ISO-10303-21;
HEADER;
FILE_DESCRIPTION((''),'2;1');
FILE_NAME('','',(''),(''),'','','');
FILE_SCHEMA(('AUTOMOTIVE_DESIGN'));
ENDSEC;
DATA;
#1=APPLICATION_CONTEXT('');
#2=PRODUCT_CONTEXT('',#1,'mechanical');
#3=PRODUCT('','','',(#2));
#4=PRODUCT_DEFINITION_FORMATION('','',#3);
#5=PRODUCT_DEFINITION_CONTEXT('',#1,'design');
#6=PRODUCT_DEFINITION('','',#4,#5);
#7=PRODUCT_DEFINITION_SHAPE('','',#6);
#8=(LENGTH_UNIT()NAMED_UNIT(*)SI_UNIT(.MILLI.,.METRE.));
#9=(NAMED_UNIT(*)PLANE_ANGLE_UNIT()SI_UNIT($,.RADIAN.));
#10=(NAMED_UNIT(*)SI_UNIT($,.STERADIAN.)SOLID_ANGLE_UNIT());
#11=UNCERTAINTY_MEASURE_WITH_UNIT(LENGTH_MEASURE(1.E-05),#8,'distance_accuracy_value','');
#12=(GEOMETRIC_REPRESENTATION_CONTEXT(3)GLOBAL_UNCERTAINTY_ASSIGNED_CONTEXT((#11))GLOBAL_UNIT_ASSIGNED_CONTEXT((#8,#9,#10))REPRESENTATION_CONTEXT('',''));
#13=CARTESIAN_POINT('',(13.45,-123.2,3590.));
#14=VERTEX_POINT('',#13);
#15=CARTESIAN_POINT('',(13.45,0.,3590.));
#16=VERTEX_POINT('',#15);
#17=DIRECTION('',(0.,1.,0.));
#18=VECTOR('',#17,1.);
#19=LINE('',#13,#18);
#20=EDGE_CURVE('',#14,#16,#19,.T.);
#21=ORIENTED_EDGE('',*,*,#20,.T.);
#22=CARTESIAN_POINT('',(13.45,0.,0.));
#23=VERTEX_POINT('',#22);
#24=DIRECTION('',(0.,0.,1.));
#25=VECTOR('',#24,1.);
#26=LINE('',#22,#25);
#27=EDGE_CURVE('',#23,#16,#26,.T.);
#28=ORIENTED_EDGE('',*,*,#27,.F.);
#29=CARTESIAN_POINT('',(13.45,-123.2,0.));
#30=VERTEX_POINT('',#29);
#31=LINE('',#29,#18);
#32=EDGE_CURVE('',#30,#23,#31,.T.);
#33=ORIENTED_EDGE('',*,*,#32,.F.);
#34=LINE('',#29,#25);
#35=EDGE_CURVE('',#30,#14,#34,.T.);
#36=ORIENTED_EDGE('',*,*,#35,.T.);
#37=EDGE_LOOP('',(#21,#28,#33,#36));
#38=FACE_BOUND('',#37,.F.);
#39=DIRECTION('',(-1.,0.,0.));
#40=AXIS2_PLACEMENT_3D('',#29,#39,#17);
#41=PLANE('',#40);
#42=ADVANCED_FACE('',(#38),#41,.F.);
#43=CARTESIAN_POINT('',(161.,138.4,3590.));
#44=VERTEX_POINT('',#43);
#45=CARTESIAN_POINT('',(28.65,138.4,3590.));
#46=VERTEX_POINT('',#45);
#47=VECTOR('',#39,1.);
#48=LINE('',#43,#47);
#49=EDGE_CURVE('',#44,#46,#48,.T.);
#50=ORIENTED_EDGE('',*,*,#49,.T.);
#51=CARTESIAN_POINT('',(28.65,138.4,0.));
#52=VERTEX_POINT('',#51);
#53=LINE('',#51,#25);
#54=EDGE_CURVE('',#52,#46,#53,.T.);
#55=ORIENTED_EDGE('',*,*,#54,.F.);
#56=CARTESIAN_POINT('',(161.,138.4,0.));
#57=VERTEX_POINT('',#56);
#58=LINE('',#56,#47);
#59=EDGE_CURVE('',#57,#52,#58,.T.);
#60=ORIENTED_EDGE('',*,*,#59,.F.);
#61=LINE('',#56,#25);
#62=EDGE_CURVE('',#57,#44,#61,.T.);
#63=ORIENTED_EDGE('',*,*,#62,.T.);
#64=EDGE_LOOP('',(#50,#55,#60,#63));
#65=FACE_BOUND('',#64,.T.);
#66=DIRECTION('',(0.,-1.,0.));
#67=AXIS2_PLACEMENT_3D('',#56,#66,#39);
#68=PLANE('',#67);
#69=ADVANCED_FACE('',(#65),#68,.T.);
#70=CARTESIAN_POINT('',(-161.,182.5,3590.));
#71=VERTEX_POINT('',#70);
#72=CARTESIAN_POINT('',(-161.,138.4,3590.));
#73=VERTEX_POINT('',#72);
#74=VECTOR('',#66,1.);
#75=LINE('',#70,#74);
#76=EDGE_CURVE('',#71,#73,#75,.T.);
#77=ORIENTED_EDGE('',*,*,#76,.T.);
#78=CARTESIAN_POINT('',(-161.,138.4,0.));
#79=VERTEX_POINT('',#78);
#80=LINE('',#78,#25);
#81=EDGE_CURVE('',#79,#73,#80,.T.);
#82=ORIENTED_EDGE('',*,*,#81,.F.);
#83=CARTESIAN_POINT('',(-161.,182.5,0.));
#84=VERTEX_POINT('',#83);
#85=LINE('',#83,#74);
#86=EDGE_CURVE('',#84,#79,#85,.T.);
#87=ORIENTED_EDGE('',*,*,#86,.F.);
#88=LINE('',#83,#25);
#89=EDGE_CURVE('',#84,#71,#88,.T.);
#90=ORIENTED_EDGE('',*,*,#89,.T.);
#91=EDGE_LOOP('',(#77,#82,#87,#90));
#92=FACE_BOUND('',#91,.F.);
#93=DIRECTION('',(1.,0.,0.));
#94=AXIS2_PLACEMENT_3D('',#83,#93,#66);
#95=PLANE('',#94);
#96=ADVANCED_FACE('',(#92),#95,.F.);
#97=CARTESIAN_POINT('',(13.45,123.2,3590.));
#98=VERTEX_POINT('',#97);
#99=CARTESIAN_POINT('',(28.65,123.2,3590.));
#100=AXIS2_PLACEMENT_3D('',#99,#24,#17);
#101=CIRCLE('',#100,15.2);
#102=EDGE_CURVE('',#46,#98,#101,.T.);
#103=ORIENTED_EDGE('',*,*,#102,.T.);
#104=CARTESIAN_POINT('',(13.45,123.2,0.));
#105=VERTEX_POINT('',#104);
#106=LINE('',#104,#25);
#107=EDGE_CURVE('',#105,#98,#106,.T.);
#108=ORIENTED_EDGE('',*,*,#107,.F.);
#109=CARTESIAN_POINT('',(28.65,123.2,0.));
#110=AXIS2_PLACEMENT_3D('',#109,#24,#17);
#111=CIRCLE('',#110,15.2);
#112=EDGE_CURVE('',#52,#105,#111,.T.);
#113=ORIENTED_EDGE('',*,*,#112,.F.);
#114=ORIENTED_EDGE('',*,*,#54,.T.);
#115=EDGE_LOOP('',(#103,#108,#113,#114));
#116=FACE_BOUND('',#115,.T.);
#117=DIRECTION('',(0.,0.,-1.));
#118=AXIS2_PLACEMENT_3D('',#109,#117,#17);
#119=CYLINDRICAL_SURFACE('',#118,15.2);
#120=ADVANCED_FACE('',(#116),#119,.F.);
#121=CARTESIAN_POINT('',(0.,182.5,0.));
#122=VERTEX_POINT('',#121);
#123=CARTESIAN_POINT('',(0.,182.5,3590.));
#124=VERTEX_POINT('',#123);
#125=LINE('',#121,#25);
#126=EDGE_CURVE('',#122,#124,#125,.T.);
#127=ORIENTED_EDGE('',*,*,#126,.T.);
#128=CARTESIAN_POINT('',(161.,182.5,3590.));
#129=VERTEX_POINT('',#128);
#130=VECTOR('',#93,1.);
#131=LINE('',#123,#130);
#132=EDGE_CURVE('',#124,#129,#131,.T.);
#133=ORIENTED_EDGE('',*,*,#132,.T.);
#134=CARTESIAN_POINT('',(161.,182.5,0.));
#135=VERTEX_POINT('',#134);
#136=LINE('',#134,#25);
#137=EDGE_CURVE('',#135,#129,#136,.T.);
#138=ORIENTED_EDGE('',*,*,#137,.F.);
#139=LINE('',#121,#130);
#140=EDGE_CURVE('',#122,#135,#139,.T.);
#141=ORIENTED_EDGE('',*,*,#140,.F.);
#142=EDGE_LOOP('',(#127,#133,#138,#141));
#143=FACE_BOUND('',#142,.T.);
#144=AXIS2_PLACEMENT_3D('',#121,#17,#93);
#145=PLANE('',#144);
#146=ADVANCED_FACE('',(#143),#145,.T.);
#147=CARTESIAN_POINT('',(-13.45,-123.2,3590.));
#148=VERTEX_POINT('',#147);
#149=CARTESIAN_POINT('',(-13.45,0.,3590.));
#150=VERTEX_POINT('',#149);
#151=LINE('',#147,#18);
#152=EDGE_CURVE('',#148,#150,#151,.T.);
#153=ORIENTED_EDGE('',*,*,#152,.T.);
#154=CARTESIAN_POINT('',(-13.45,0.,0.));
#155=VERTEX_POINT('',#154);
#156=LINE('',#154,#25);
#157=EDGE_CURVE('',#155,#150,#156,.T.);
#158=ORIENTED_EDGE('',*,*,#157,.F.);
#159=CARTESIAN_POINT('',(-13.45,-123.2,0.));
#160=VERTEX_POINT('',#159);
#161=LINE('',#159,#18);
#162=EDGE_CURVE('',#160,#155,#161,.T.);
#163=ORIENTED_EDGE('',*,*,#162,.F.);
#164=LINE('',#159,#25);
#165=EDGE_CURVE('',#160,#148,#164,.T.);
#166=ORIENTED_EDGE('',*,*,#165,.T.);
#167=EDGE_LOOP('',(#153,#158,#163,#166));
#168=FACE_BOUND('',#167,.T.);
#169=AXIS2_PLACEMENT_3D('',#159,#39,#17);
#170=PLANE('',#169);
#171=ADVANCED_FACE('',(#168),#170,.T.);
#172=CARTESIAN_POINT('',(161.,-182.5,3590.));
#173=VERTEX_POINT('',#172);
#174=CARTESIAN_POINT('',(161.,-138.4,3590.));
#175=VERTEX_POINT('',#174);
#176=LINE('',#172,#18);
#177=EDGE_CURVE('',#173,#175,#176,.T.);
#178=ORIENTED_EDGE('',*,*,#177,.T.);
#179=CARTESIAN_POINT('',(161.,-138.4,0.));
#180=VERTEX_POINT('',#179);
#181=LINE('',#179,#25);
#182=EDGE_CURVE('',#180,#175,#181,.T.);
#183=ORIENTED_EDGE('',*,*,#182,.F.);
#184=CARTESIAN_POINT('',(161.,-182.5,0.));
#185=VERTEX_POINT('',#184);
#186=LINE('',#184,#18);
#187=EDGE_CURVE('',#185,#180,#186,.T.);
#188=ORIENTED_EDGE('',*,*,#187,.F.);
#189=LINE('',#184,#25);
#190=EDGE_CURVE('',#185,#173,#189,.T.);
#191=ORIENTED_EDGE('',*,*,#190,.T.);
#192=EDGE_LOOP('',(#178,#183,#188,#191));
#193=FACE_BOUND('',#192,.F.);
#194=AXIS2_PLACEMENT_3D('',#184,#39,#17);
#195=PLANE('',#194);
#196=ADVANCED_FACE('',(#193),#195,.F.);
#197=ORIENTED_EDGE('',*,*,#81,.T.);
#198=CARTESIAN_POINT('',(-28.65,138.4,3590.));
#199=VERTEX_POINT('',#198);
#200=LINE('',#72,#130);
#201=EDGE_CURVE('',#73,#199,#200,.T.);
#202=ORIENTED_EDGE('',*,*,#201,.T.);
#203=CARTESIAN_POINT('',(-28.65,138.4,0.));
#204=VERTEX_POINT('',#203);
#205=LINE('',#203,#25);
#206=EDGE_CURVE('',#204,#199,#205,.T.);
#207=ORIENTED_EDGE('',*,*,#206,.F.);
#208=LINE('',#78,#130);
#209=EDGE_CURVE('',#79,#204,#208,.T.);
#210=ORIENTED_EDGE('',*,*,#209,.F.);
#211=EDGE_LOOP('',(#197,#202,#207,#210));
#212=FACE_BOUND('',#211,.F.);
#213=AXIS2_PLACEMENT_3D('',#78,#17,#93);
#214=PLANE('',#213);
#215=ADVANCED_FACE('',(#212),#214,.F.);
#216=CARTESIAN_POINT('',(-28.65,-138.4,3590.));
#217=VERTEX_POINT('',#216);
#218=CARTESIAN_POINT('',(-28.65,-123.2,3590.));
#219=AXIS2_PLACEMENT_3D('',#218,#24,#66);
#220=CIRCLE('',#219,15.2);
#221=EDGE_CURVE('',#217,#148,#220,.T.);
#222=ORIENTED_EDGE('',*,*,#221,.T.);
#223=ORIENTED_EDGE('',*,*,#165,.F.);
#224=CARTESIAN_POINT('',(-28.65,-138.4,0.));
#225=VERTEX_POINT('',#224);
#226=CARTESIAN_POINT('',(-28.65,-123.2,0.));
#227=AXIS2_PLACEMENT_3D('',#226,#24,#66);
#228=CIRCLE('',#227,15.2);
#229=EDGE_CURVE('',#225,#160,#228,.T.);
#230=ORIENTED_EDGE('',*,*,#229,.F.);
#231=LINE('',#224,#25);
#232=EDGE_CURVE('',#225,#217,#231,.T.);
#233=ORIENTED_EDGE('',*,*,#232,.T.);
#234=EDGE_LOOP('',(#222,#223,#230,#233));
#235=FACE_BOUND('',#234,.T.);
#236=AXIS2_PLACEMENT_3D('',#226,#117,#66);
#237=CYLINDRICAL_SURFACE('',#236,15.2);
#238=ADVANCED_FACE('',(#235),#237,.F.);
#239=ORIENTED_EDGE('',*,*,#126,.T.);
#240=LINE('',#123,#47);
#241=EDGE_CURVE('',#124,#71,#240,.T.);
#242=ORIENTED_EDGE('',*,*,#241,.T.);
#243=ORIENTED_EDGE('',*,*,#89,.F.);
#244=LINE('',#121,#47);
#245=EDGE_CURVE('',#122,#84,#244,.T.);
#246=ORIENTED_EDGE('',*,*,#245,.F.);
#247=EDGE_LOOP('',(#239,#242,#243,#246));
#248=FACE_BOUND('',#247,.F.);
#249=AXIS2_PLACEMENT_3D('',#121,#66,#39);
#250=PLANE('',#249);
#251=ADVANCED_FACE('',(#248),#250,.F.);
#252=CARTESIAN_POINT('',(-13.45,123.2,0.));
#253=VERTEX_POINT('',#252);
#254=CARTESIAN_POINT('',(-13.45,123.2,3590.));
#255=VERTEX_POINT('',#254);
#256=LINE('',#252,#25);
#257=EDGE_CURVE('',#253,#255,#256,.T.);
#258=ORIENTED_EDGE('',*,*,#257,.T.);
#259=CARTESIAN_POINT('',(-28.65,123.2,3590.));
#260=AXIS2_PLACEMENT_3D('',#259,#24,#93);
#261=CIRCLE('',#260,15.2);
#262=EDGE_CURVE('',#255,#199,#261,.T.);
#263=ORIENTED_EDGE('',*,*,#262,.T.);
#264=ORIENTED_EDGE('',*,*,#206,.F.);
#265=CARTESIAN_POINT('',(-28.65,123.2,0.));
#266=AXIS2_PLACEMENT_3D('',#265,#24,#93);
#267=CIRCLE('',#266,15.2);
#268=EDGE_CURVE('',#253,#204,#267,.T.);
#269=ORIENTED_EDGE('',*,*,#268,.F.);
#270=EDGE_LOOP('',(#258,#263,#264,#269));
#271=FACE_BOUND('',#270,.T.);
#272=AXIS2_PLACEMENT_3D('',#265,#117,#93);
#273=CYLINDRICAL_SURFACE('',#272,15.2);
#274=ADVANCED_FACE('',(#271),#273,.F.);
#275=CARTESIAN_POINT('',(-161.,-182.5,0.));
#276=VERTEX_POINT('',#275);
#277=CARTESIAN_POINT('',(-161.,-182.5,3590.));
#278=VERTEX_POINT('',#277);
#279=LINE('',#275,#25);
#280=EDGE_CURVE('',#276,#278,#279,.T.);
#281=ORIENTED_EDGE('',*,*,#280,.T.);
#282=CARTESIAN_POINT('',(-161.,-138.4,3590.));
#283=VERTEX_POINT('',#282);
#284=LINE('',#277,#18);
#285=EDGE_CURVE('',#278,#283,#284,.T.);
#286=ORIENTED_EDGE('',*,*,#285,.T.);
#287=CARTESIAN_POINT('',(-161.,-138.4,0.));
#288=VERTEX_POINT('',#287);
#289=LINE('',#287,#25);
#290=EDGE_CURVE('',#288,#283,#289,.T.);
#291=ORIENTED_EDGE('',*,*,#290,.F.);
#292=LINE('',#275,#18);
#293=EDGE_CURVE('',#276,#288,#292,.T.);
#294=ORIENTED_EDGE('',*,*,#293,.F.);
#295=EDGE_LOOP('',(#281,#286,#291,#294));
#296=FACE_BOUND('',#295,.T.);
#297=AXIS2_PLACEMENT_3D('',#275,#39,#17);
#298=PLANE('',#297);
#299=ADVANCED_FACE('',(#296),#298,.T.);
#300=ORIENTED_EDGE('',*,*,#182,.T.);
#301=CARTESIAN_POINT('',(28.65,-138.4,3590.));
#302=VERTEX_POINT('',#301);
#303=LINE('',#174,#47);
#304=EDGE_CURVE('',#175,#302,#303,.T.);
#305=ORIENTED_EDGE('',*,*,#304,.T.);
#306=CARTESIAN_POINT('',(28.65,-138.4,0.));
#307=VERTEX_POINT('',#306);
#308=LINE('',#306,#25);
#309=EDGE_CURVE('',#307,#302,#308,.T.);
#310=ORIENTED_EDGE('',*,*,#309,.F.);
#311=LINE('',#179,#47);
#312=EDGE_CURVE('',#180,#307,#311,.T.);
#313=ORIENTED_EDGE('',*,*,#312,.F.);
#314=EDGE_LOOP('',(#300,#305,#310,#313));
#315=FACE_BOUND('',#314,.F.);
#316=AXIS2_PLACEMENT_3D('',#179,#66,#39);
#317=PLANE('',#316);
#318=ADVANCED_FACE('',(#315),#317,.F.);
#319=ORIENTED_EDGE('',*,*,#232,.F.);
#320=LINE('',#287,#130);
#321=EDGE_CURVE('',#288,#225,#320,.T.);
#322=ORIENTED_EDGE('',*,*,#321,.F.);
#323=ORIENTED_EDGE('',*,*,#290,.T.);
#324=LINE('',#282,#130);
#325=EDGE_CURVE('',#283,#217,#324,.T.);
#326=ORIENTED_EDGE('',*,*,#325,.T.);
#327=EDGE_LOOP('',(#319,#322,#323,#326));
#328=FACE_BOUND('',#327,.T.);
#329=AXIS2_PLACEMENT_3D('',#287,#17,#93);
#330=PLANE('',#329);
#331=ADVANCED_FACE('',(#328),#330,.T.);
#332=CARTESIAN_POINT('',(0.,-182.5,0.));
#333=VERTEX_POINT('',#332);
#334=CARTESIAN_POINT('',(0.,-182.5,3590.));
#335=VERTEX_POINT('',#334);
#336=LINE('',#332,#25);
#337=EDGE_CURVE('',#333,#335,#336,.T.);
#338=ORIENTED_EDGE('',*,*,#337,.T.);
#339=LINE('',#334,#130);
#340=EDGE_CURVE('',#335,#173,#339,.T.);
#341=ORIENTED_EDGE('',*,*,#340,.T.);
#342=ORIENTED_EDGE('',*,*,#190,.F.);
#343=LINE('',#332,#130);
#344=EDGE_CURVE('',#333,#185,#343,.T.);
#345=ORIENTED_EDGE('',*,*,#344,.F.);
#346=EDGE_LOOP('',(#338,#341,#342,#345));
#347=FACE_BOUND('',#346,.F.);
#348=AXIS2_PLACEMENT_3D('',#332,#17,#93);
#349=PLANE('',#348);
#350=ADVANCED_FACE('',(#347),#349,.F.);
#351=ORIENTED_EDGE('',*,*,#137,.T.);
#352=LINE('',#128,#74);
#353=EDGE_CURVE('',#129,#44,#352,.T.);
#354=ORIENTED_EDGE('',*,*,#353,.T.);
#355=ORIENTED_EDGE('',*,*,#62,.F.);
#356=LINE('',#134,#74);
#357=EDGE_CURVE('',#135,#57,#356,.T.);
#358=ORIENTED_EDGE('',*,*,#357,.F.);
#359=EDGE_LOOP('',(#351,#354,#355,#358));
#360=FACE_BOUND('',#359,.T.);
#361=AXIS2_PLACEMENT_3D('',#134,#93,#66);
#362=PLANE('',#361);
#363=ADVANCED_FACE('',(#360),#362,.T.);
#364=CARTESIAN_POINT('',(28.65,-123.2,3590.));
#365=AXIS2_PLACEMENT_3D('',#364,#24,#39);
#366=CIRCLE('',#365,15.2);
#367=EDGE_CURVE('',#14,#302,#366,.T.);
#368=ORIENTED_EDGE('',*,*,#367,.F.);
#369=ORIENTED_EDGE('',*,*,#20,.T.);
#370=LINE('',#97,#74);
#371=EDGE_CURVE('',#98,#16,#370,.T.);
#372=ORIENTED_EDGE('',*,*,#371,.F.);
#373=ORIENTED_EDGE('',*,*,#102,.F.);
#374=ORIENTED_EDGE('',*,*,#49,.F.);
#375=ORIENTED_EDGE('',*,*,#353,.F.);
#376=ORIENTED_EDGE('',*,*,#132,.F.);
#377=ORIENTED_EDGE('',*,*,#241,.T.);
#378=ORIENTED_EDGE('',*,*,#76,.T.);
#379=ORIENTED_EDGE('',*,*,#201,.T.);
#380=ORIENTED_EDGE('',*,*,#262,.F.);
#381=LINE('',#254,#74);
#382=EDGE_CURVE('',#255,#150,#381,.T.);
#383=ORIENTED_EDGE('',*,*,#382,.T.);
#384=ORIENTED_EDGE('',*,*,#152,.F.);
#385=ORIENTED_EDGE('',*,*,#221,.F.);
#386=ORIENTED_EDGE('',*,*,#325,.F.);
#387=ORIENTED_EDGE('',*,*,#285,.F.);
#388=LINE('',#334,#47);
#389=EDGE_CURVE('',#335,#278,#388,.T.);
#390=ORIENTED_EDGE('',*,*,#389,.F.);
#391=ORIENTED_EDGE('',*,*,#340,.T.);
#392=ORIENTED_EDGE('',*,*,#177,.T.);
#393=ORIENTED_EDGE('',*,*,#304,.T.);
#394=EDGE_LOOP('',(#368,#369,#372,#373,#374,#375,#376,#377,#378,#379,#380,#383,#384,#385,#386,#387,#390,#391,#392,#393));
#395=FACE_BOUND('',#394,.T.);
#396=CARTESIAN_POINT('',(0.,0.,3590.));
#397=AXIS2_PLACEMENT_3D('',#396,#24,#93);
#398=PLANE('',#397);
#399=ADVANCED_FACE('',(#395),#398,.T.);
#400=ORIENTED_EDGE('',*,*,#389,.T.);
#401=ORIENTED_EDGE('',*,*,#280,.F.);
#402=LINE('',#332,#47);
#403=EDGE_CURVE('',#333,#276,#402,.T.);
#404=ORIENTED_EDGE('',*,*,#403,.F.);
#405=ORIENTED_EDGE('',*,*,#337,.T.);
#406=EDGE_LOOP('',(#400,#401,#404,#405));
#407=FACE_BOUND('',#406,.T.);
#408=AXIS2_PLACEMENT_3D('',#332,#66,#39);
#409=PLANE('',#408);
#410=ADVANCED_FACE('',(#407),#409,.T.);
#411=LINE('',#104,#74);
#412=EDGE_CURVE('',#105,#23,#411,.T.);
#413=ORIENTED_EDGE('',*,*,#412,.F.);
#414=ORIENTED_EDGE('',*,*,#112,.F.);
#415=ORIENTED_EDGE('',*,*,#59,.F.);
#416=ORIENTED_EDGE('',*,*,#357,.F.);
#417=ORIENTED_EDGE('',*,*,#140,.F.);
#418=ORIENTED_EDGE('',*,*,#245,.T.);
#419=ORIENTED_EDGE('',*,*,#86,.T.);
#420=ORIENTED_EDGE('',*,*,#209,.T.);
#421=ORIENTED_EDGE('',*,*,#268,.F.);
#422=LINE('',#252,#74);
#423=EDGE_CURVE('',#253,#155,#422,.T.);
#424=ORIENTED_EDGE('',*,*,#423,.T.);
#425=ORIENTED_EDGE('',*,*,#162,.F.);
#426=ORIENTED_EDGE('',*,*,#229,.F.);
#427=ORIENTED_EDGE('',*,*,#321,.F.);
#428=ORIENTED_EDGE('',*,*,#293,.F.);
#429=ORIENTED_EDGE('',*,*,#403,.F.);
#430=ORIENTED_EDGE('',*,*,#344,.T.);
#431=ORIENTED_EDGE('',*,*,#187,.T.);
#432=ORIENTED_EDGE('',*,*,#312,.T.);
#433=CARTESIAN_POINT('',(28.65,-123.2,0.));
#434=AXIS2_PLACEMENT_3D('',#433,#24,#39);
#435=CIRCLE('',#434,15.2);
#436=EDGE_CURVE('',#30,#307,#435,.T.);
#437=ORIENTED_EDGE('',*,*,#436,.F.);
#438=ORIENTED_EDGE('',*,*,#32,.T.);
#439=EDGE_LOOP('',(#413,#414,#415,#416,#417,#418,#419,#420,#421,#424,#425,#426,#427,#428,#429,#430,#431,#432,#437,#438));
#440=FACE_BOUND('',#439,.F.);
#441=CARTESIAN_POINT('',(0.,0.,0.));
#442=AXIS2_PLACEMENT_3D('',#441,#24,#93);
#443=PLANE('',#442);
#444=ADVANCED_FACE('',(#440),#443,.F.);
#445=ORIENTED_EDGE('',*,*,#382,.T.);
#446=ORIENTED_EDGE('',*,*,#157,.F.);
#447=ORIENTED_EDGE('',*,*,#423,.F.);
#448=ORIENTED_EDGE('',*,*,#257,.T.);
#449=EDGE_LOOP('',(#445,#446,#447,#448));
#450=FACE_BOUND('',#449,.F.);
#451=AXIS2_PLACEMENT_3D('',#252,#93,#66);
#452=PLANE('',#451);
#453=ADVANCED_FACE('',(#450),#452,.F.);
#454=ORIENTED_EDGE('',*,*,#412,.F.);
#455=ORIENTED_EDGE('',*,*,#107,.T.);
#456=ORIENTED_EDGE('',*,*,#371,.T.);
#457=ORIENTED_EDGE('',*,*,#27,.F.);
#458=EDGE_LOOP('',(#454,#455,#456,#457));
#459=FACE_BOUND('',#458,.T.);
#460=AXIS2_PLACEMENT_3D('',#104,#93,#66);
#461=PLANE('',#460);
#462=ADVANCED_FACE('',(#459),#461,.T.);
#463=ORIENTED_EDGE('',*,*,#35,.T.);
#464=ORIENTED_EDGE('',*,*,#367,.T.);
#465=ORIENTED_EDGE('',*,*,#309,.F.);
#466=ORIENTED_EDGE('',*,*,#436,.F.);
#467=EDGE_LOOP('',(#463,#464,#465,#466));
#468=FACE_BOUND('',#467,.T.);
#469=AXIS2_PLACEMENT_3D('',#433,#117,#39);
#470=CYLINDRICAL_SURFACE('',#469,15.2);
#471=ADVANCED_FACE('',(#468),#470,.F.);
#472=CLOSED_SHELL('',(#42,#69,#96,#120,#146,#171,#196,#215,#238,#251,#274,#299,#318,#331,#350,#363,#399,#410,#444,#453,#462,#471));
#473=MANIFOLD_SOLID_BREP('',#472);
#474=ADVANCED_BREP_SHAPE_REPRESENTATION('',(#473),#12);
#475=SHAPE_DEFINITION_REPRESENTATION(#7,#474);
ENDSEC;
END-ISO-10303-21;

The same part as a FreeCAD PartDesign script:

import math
import FreeCAD as App
import Part
import Sketcher

doc = App.newDocument("Part")
body = doc.addObject("PartDesign::Body", "Body")

# Sketch on XY plane
sketch1 = doc.addObject("Sketcher::SketchObject", "Sketch")
body.addObject(sketch1)
sketch1.AttachmentSupport = (doc.XY_Plane, [""])
sketch1.MapMode = "FlatFace"
sketch1.addGeometry(Part.LineSegment(App.Vector(-161, -138, 0), App.Vector(-161, -182, 0)), False)
sketch1.addGeometry(Part.LineSegment(App.Vector(-161, -182, 0), App.Vector(161, -182, 0)), False)
sketch1.addGeometry(Part.LineSegment(App.Vector(161, -182, 0), App.Vector(161, -138, 0)), False)
sketch1.addGeometry(Part.LineSegment(App.Vector(161, -138, 0), App.Vector(29, -138, 0)), False)
sketch1.addGeometry(Part.ArcOfCircle(Part.Circle(App.Vector(29, -123, 0), App.Vector(0, 0, 1), 15), math.radians(180), math.radians(270)), False)
sketch1.addGeometry(Part.LineSegment(App.Vector(13, -123, 0), App.Vector(13, 123, 0)), False)
sketch1.addGeometry(Part.ArcOfCircle(Part.Circle(App.Vector(29, 123, 0), App.Vector(0, 0, 1), 15), math.radians(90), math.radians(180)), False)
sketch1.addGeometry(Part.LineSegment(App.Vector(29, 138, 0), App.Vector(161, 138, 0)), False)
sketch1.addGeometry(Part.LineSegment(App.Vector(161, 138, 0), App.Vector(161, 182, 0)), False)
sketch1.addGeometry(Part.LineSegment(App.Vector(161, 182, 0), App.Vector(-161, 182, 0)), False)
sketch1.addGeometry(Part.LineSegment(App.Vector(-161, 182, 0), App.Vector(-161, 138, 0)), False)
sketch1.addGeometry(Part.LineSegment(App.Vector(-161, 138, 0), App.Vector(-29, 138, 0)), False)
sketch1.addGeometry(Part.ArcOfCircle(Part.Circle(App.Vector(-29, 123, 0), App.Vector(0, 0, 1), 15), math.radians(0), math.radians(90)), False)
sketch1.addGeometry(Part.LineSegment(App.Vector(-13, 123, 0), App.Vector(-13, -123, 0)), False)
sketch1.addGeometry(Part.ArcOfCircle(Part.Circle(App.Vector(-29, -123, 0), App.Vector(0, 0, 1), 15), math.radians(-90), math.radians(0)), False)
sketch1.addGeometry(Part.LineSegment(App.Vector(-29, -138, 0), App.Vector(-161, -138, 0)), False)
sketch1.addConstraint(Sketcher.Constraint("Coincident", 0, 2, 1, 1))
sketch1.addConstraint(Sketcher.Constraint("Coincident", 1, 2, 2, 1))
sketch1.addConstraint(Sketcher.Constraint("Coincident", 2, 2, 3, 1))
sketch1.addConstraint(Sketcher.Constraint("Tangent", 3, 2, 4, 2))
sketch1.addConstraint(Sketcher.Constraint("Tangent", 4, 1, 5, 1))
sketch1.addConstraint(Sketcher.Constraint("Tangent", 5, 2, 6, 2))
sketch1.addConstraint(Sketcher.Constraint("Tangent", 6, 1, 7, 1))
sketch1.addConstraint(Sketcher.Constraint("Coincident", 7, 2, 8, 1))
sketch1.addConstraint(Sketcher.Constraint("Coincident", 8, 2, 9, 1))
sketch1.addConstraint(Sketcher.Constraint("Coincident", 9, 2, 10, 1))
sketch1.addConstraint(Sketcher.Constraint("Coincident", 10, 2, 11, 1))
sketch1.addConstraint(Sketcher.Constraint("Tangent", 11, 2, 12, 2))
sketch1.addConstraint(Sketcher.Constraint("Tangent", 12, 1, 13, 1))
sketch1.addConstraint(Sketcher.Constraint("Tangent", 13, 2, 14, 2))
sketch1.addConstraint(Sketcher.Constraint("Tangent", 14, 1, 15, 1))
sketch1.addConstraint(Sketcher.Constraint("Coincident", 15, 2, 0, 1))
sketch1.addConstraint(Sketcher.Constraint("Vertical", 0))
sketch1.addConstraint(Sketcher.Constraint("Horizontal", 1))
sketch1.addConstraint(Sketcher.Constraint("Vertical", 2))
sketch1.addConstraint(Sketcher.Constraint("Horizontal", 3))
sketch1.addConstraint(Sketcher.Constraint("Vertical", 5))
sketch1.addConstraint(Sketcher.Constraint("Horizontal", 7))
sketch1.addConstraint(Sketcher.Constraint("Vertical", 8))
sketch1.addConstraint(Sketcher.Constraint("Horizontal", 9))
sketch1.addConstraint(Sketcher.Constraint("Vertical", 10))
sketch1.addConstraint(Sketcher.Constraint("Horizontal", 11))
sketch1.addConstraint(Sketcher.Constraint("Vertical", 13))
sketch1.addConstraint(Sketcher.Constraint("Horizontal", 15))
sketch1.addConstraint(Sketcher.Constraint("Equal", 4, 6))
sketch1.addConstraint(Sketcher.Constraint("Equal", 6, 12))
sketch1.addConstraint(Sketcher.Constraint("Equal", 12, 14))
sketch1.addConstraint(Sketcher.Constraint("Symmetric", 4, 3, 12, 3, -1, 1))
sketch1.addConstraint(Sketcher.Constraint("Symmetric", 0, 2, 8, 2, -1, 1))
sketch1.addConstraint(Sketcher.Constraint("Symmetric", 7, 2, 10, 2, -2))
sketch1.addConstraint(Sketcher.Constraint("Symmetric", 2, 2, 15, 2, -2))
sketch1.addConstraint(Sketcher.Constraint("Radius", 4, 15.2))
sketch1.addConstraint(Sketcher.Constraint("DistanceY", 0, 2, 0, 1, 44.1))
sketch1.addConstraint(Sketcher.Constraint("DistanceX", 0, 2, -1, 1, 161.0))
sketch1.addConstraint(Sketcher.Constraint("DistanceY", 0, 2, -1, 1, 182.5))
sketch1.addConstraint(Sketcher.Constraint("DistanceX", -1, 1, 4, 1, 13.45))
pad1 = doc.addObject("PartDesign::Pad", "Pad")
body.addObject(pad1)
pad1.Profile = sketch1
pad1.Length = 3590

doc.recompute()
